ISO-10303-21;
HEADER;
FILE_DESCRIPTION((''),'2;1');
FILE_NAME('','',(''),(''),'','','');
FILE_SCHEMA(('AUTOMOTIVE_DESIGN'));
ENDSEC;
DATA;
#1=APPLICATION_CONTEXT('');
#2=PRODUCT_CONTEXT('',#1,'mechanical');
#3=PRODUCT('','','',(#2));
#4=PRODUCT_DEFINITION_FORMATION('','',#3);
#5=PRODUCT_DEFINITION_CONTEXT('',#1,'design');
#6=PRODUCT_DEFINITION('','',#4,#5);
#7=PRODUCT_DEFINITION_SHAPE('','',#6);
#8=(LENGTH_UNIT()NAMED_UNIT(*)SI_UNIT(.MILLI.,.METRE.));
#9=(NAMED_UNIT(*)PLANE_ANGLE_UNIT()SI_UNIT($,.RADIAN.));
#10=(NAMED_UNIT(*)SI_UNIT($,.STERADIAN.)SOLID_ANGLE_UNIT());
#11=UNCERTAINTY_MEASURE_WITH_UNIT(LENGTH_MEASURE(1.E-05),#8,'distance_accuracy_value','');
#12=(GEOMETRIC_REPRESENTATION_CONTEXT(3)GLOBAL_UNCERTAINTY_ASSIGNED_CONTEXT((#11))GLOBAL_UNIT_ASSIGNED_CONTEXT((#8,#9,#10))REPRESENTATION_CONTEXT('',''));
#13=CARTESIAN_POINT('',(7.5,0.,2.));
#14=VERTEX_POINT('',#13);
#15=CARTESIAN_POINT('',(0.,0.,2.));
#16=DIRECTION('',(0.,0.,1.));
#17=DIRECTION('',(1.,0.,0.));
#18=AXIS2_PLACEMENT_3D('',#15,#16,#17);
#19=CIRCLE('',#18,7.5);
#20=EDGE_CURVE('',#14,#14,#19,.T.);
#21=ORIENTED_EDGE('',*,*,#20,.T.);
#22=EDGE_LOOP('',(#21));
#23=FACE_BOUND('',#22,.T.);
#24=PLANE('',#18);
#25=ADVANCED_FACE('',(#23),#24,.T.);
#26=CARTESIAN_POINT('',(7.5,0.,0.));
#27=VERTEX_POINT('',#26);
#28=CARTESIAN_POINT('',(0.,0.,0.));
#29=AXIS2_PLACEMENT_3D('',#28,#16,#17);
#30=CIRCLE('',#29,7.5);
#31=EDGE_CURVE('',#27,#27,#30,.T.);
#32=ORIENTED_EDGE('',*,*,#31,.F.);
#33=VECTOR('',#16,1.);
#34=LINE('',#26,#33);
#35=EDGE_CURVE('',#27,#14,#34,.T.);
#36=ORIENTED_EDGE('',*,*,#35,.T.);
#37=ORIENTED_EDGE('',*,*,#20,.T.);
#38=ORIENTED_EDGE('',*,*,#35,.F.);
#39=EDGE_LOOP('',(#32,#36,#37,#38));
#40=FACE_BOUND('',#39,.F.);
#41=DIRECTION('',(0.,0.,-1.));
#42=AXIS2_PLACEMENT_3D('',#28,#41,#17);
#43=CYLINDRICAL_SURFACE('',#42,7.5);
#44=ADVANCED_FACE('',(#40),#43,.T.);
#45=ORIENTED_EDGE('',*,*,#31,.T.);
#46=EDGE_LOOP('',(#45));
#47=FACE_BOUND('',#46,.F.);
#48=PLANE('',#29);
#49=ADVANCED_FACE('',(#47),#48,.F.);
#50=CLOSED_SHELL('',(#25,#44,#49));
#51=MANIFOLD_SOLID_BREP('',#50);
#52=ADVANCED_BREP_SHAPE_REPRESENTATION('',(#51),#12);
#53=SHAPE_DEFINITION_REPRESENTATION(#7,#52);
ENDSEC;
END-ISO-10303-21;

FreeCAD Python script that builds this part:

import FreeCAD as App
import Part
import Sketcher

V = App.Vector

doc = App.newDocument("Part")
params = doc.addObject("Spreadsheet::Sheet", "Params")
for row, (alias, value) in enumerate([
    ("sketch1_diameter", "15 mm"),
    ("pad1_length", "2 mm"),
], start=1):
    params.set(f"A{row}", alias)
    params.set(f"B{row}", "=" + value)
    params.setAlias(f"B{row}", alias)

body = doc.addObject("PartDesign::Body", "Body")

# Sketch on XY plane
sketch1 = body.newObject("Sketcher::SketchObject", "Sketch")
sketch1.AttachmentSupport = (doc.getObject("XY_Plane"), [""])
sketch1.MapMode = "FlatFace"
sketch1.addGeometry(Part.Circle(V(0, 0, 0), V(0, 0, 1), 8), False)
sketch1.addConstraint([
    Sketcher.Constraint("Coincident", 0, 3, -1, 1),
    Sketcher.Constraint("Diameter", 0, 15.0),
])
sketch1.setExpression("Constraints[1]", "Params.sketch1_diameter")
pad1 = body.newObject("PartDesign::Pad", "Pad")
pad1.Profile = sketch1
pad1.setExpression("Length", "Params.pad1_length")

doc.recompute()
